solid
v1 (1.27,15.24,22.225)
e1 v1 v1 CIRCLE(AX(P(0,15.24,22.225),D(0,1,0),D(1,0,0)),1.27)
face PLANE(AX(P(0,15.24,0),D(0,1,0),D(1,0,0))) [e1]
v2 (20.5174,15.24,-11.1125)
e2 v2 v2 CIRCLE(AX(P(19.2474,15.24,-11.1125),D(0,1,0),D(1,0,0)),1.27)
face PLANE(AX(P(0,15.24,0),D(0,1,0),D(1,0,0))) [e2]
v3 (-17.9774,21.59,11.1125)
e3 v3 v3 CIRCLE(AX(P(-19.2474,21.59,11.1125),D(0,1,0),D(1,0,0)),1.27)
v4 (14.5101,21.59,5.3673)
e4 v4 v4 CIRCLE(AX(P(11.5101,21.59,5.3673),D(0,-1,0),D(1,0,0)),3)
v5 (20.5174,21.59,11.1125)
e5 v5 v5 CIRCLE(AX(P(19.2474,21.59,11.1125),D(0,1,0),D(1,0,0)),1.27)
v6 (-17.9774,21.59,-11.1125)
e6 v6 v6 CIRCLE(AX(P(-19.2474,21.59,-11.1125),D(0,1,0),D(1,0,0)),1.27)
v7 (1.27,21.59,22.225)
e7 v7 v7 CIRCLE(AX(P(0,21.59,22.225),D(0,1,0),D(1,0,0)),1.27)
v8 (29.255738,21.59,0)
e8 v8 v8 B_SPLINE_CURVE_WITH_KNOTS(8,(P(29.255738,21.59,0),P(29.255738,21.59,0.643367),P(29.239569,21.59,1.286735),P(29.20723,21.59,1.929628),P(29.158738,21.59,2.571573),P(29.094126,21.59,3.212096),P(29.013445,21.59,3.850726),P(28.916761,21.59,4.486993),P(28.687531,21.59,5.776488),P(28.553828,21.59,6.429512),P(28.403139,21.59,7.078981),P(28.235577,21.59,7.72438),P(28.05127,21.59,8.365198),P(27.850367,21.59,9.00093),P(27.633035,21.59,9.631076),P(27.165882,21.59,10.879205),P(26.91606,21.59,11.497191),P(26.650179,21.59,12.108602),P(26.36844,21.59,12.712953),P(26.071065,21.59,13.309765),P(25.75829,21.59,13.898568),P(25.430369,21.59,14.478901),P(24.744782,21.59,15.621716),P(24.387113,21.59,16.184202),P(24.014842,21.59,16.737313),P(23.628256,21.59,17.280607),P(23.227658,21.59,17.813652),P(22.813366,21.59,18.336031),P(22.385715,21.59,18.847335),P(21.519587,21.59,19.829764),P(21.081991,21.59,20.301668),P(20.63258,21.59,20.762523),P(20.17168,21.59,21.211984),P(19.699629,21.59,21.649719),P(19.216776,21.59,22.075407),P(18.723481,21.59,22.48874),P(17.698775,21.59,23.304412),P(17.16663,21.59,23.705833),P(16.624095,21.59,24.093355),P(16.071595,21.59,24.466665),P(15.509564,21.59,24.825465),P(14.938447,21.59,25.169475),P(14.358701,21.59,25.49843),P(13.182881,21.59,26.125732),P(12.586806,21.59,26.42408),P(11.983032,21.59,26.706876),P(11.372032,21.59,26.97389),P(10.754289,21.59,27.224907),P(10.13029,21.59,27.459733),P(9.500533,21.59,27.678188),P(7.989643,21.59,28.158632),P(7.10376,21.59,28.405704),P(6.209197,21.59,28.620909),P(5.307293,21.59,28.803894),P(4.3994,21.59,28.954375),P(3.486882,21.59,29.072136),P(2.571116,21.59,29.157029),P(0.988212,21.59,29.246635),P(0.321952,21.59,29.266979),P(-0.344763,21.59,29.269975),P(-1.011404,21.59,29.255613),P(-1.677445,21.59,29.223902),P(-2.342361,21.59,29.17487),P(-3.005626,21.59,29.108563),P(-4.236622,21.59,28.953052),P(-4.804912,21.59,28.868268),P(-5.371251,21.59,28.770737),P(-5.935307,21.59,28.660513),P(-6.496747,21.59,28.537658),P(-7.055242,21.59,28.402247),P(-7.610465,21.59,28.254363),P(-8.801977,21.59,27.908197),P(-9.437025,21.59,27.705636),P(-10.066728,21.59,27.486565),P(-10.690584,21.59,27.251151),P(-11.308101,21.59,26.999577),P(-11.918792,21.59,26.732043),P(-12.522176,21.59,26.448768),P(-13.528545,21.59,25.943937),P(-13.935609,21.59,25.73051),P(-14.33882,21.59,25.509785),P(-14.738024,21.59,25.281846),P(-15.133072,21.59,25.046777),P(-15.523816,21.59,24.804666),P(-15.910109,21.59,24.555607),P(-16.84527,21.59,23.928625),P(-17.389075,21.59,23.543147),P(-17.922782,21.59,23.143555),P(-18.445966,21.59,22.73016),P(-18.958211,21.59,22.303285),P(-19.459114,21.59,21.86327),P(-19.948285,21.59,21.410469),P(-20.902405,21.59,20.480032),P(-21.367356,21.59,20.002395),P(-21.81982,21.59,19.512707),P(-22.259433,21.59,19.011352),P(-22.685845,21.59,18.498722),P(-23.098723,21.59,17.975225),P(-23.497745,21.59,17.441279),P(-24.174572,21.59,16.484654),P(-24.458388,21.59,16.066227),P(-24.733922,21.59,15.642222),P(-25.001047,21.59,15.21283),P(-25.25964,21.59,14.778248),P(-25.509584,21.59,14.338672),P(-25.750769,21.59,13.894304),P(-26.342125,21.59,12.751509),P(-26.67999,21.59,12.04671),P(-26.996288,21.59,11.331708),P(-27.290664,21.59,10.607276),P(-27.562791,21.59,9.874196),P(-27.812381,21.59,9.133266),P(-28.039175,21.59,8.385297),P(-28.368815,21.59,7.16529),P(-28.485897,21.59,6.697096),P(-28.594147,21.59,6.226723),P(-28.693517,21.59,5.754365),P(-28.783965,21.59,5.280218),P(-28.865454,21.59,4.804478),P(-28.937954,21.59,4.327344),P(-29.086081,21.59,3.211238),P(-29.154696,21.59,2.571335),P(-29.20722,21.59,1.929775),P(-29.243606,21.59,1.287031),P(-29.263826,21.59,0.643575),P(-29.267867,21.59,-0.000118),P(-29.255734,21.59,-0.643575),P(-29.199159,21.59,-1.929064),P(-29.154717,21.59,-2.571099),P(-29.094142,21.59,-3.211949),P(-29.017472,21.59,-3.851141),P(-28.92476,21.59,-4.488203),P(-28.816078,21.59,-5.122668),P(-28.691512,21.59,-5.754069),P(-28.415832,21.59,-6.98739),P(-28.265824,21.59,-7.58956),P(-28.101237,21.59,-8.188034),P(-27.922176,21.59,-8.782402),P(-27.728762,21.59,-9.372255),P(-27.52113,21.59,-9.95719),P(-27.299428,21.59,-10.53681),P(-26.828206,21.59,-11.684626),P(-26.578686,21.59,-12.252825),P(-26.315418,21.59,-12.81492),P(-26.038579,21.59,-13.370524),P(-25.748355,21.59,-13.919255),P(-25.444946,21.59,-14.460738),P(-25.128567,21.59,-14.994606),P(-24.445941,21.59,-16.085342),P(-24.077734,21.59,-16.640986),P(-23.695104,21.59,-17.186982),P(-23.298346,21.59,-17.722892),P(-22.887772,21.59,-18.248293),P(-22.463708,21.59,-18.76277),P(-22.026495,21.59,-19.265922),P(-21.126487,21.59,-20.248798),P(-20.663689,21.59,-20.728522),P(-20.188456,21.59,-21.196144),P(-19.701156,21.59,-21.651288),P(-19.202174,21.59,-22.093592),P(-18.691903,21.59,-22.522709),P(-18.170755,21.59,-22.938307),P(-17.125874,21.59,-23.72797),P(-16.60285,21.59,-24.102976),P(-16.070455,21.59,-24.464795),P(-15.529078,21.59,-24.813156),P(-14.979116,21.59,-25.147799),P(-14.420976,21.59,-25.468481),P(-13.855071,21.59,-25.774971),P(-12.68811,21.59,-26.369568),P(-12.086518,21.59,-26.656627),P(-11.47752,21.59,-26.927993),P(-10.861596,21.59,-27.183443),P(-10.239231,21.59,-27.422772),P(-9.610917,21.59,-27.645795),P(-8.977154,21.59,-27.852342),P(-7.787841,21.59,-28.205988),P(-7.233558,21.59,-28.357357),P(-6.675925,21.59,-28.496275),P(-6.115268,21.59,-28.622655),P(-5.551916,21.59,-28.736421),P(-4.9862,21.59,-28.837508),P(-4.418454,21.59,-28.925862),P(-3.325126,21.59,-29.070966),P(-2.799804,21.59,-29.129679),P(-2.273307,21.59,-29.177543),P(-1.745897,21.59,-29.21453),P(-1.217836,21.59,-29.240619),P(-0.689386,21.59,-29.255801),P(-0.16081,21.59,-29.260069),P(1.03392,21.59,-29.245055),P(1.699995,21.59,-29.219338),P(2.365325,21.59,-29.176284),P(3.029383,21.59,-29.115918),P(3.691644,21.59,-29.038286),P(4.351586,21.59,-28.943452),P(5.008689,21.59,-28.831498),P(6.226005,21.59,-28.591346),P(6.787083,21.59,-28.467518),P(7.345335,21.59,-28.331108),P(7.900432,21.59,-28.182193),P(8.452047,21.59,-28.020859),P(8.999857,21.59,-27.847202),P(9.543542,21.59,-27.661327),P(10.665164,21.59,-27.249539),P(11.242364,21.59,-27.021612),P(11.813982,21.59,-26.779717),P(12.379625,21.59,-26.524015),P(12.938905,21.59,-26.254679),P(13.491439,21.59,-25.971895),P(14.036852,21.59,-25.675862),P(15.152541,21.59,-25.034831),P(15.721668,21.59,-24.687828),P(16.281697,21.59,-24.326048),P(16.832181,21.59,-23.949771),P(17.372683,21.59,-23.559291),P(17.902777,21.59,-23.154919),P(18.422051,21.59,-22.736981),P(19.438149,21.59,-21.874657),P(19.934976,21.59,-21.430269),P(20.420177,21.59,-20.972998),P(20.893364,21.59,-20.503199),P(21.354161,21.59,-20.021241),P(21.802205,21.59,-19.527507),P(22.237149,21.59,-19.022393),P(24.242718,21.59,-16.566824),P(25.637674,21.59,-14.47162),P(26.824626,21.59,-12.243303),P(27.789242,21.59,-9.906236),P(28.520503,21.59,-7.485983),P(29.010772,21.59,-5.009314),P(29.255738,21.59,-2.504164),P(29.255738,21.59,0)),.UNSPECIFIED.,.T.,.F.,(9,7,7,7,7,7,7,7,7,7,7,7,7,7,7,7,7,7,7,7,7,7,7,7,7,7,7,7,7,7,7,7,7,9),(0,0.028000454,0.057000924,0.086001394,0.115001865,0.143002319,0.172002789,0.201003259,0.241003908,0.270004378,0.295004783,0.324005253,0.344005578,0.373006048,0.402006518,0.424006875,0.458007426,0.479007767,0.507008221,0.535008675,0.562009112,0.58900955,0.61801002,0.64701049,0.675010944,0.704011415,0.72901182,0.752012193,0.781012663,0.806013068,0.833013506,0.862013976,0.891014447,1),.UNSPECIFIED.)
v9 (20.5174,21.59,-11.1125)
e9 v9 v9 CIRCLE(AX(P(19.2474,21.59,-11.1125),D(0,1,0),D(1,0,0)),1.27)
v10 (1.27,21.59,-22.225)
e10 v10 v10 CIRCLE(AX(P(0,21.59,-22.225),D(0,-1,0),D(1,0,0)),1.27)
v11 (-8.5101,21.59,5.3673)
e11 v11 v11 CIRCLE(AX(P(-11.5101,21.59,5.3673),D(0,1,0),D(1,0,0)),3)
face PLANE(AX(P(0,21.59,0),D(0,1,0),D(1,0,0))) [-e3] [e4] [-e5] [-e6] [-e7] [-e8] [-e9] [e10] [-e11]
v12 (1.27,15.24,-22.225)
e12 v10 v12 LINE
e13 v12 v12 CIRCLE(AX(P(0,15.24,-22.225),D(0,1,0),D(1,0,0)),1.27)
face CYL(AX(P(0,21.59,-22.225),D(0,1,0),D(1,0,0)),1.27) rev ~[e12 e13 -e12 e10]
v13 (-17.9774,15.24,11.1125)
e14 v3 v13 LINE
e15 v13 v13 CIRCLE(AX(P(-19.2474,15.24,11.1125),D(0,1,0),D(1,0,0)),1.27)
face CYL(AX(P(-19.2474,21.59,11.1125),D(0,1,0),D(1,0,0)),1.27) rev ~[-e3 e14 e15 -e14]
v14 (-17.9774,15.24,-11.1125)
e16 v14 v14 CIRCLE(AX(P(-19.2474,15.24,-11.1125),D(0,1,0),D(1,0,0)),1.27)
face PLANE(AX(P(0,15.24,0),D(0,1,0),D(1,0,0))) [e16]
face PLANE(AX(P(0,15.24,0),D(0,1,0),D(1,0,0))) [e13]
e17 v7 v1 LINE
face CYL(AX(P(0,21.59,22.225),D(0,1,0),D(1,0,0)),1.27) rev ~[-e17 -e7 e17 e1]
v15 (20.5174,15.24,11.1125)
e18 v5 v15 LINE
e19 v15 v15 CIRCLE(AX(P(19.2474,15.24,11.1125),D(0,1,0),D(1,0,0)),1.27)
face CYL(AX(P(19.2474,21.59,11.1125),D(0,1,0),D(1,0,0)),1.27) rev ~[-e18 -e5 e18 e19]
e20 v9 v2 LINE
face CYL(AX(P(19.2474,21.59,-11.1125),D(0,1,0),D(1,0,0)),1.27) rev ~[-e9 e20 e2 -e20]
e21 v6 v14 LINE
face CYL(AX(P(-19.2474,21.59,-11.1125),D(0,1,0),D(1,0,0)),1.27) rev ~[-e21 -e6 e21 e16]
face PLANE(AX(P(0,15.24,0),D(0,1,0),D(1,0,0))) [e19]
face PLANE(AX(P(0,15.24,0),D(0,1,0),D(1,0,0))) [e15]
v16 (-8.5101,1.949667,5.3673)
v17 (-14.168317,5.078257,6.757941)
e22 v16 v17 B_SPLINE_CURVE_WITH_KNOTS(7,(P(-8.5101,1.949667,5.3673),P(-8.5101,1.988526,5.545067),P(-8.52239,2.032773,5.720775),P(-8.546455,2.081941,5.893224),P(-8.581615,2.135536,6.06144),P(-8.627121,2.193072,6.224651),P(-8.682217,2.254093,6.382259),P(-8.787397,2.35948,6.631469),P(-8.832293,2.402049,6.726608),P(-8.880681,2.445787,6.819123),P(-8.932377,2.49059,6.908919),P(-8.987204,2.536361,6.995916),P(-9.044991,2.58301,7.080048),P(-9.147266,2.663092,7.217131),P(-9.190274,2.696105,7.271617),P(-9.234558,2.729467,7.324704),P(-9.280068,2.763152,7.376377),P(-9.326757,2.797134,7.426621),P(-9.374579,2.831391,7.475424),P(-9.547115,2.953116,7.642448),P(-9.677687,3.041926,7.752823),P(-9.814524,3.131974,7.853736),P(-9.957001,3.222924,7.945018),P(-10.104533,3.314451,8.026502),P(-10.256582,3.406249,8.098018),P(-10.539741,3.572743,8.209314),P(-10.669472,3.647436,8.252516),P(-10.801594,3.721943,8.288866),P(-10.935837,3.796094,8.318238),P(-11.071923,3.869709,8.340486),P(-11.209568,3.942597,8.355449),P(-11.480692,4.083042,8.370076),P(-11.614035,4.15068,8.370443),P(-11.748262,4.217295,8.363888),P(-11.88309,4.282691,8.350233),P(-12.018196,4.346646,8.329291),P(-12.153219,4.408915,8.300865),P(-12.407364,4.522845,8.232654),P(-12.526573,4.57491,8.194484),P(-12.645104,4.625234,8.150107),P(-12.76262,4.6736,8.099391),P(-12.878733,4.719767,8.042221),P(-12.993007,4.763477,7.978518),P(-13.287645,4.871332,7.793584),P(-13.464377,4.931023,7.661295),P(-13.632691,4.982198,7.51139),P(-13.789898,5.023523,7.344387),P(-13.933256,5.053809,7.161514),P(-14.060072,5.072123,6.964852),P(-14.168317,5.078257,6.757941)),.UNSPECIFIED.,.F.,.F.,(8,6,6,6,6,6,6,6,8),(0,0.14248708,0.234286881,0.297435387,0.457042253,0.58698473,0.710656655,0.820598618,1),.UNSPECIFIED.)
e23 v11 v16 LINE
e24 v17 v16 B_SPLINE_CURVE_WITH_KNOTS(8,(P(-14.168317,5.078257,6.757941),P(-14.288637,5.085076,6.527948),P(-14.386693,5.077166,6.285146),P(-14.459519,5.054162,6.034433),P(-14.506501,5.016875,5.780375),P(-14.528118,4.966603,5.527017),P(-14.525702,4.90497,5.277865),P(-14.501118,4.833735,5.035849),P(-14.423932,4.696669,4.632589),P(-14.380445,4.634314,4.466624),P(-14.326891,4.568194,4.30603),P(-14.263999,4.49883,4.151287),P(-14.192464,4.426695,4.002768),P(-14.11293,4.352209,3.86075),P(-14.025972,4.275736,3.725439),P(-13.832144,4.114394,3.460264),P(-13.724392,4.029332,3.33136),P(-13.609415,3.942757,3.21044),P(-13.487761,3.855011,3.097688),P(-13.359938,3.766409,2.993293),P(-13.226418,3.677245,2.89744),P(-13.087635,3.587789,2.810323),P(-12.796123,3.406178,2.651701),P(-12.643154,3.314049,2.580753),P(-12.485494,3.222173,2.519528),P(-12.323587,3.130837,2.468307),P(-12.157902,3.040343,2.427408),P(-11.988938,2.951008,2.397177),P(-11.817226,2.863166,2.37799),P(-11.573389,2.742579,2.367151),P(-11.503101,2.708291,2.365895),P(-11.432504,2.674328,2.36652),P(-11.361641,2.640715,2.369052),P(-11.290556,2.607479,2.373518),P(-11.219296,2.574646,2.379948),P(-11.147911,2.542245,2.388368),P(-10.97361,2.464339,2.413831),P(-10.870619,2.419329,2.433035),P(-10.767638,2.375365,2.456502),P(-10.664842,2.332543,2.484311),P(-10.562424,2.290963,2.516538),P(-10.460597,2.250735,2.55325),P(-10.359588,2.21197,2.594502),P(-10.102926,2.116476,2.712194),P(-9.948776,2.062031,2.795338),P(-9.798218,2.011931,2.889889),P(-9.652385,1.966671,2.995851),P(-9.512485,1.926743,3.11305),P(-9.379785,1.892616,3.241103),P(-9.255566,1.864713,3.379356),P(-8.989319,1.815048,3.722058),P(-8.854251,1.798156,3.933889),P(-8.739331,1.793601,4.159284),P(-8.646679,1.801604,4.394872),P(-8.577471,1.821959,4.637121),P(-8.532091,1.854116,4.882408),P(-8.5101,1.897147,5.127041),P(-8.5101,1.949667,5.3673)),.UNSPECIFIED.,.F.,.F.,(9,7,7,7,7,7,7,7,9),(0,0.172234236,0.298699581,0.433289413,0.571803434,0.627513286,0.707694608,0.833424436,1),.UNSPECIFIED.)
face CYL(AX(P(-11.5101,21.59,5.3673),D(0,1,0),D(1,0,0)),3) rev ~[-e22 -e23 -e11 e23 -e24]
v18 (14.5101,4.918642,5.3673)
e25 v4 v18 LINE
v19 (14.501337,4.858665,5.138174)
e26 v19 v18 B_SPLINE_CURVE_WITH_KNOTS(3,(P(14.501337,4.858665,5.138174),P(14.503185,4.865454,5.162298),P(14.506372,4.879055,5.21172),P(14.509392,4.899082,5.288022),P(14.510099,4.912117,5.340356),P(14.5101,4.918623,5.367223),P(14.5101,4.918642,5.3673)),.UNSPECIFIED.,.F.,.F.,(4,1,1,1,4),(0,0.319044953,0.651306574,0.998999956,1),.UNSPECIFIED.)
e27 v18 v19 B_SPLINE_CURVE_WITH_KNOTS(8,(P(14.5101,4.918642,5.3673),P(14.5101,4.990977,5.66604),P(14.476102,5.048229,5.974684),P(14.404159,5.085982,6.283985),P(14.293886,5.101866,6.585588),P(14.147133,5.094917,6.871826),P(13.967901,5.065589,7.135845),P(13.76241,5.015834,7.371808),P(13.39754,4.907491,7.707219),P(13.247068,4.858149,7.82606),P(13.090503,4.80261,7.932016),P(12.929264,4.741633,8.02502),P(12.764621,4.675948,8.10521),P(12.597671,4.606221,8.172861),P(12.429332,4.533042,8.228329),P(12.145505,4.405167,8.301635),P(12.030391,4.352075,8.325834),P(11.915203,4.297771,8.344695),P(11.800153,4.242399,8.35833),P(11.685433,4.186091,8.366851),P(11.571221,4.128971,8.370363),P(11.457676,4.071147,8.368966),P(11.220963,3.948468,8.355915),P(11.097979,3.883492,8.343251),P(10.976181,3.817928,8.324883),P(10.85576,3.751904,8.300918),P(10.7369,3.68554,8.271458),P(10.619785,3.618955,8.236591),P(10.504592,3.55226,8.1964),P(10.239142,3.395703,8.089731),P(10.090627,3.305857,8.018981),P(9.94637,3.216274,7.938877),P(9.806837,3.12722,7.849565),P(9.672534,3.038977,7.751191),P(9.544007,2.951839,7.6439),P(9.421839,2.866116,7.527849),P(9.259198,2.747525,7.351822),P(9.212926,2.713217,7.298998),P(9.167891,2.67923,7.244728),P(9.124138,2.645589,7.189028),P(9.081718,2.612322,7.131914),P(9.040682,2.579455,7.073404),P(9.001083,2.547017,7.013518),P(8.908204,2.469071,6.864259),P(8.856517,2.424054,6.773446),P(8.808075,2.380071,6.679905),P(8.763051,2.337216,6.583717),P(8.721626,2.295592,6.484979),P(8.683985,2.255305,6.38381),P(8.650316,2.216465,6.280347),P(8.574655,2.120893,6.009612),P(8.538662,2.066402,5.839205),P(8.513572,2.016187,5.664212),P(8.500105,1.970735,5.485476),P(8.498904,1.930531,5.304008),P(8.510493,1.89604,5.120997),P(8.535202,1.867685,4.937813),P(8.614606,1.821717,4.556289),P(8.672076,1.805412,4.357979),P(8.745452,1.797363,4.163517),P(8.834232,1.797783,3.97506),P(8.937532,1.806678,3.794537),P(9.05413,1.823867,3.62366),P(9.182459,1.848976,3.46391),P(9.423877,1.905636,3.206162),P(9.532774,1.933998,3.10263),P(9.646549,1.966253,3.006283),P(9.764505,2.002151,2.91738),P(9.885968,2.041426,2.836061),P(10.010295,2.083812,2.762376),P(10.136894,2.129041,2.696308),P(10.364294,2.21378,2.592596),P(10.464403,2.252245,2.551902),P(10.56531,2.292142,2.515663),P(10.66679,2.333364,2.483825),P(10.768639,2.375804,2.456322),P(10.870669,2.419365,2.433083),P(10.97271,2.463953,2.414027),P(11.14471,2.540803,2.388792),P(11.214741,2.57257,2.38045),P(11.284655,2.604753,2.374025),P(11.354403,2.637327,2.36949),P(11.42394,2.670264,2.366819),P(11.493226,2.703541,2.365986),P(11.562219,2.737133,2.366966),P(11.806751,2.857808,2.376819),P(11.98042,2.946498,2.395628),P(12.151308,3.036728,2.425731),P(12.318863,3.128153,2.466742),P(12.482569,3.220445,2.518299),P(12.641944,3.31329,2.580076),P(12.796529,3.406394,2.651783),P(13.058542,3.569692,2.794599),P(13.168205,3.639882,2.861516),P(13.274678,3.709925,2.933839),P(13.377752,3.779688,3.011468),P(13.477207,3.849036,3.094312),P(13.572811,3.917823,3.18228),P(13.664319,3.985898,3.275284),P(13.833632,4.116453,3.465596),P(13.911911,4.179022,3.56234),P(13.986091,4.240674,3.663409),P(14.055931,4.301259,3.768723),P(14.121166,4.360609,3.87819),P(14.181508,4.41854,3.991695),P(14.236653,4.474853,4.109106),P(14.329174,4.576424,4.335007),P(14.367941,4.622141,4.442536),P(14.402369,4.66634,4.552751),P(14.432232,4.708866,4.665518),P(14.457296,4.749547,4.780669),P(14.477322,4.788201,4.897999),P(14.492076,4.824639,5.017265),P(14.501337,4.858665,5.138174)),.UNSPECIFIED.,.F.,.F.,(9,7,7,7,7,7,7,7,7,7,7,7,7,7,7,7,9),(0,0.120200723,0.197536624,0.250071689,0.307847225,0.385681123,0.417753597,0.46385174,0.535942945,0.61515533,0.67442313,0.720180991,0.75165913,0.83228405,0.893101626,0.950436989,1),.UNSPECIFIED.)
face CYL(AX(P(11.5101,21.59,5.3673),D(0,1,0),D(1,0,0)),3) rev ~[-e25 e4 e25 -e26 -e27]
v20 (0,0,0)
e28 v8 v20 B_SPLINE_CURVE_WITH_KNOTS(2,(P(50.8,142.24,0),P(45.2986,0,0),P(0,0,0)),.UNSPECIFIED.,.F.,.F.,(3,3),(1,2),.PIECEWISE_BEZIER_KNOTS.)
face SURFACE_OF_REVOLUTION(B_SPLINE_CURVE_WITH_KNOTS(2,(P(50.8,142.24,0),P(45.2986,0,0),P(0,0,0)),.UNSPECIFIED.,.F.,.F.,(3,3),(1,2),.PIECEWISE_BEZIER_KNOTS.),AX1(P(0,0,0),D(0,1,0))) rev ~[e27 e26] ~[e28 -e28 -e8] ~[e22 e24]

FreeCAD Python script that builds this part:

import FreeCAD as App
import Part
import Sketcher
from FreeCAD import Vector
Q = App.Units.Quantity


def add_polygon(sketch, points):
    """Adds a closed chain of lines whose ends are joined by coincident constraints."""
    first, n = sketch.GeometryCount, len(points)
    for a, b in zip(points, points[1:] + points[:1]):
        sketch.addGeometry(Part.LineSegment(App.Vector(*a, 0), App.Vector(*b, 0)), False)
    for i in range(n):
        sketch.addConstraint(Sketcher.Constraint("Coincident", first + i, 2, first + (i + 1) % n, 1))

doc = App.newDocument("Part")
body = doc.addObject("PartDesign::Body", "Body")

sketch1 = body.newObject("Sketcher::SketchObject", "Sketch")
sketch1.AttachmentSupport = (doc.getObject("XY_Plane"), [""])
sketch1.MapMode = "FlatFace"
sketch1.addGeometry(Part.LineSegment(Vector(0, 142.24, 0), Vector(0, 0, 0)), False)
sketch1.addGeometry(Part.BSplineCurve([Vector(50.8, 142.24, 0), Vector(45.2986, 0, 0), Vector(0, 0, 0)], [3, 3], [1, 2], False, 2, [1, 1, 1], False), False)
sketch1.addGeometry(Part.LineSegment(Vector(50.8, 142.24, 0), Vector(0, 142.24, 0)), False)
sketch1.addConstraint(Sketcher.Constraint("Block", 1))
sketch1.addConstraint(Sketcher.Constraint("Coincident", 0, 2, 1, 2))
sketch1.addConstraint(Sketcher.Constraint("Coincident", 1, 1, 2, 1))
sketch1.addConstraint(Sketcher.Constraint("Coincident", 2, 2, 0, 1))
sketch1.addConstraint(Sketcher.Constraint("Vertical", 0))
sketch1.addConstraint(Sketcher.Constraint("Horizontal", 2))
revolution = body.newObject("PartDesign::Revolution", "Revolution")
revolution.Profile = sketch1
revolution.ReferenceAxis = (sketch1, ["V_Axis"])
revolution.Angle = 360

sketch2 = body.newObject("Sketcher::SketchObject", "Sketch001")
sketch2.AttachmentSupport = (doc.getObject("XZ_Plane"), [""])
sketch2.MapMode = "FlatFace"
sketch2.AttachmentOffset = App.Placement(Vector(0, 0, -0.85 * 25.4), App.Rotation())
add_polygon(sketch2, [(105, -67), (-101, -67), (-101, 71), (105, 71)])
sketch2.addConstraint(Sketcher.Constraint("Horizontal", 0))
sketch2.addConstraint(Sketcher.Constraint("Vertical", 1))
sketch2.addConstraint(Sketcher.Constraint("Horizontal", 2))
sketch2.addConstraint(Sketcher.Constraint("Vertical", 3))
sketch2.addConstraint(Sketcher.Constraint("DistanceX", 0, 2, 0, 1, Q("8.116 in")))
sketch2.addConstraint(Sketcher.Constraint("DistanceY", 1, 1, 1, 2, 137.5974))
sketch2.addConstraint(Sketcher.Constraint("DistanceY", -1, 1, 1, 2, Q("2.7773 in")))
sketch2.addConstraint(Sketcher.Constraint("DistanceX", -1, 1, 2, 2, Q("4.1218 in")))
pocket1 = body.newObject("PartDesign::Pocket", "Pocket")
pocket1.Profile = sketch2
pocket1.Type = "ThroughAll"

sketch3 = body.newObject("Sketcher::SketchObject", "Sketch002")
sketch3.AttachmentSupport = (doc.getObject("XZ_Plane"), [""])
sketch3.MapMode = "FlatFace"
sketch3.AttachmentOffset = App.Placement(Vector(0, 0, -0.85 * 25.4), App.Rotation())
sketch3.addGeometry(Part.Circle(Vector(0, -22.2, 0), Vector(0, 0, 1), 1.3), False)
sketch3.addGeometry(Part.Circle(Vector(-19.2, -11.1, 0), Vector(0, 0, 1), 1.3), False)
sketch3.addGeometry(Part.Circle(Vector(-19.2, 11.1, 0), Vector(0, 0, 1), 1.3), False)
sketch3.addGeometry(Part.Circle(Vector(0, 22.2, 0), Vector(0, 0, 1), 1.3), False)
sketch3.addGeometry(Part.Circle(Vector(19.2, 11.1, 0), Vector(0, 0, 1), 1.3), False)
sketch3.addGeometry(Part.Circle(Vector(19.2, -11.1, 0), Vector(0, 0, 1), 1.3), False)
sketch3.addConstraint(Sketcher.Constraint("Equal", 0, 1))
sketch3.addConstraint(Sketcher.Constraint("Equal", 1, 2))
sketch3.addConstraint(Sketcher.Constraint("Equal", 2, 3))
sketch3.addConstraint(Sketcher.Constraint("Equal", 3, 4))
sketch3.addConstraint(Sketcher.Constraint("Equal", 4, 5))
sketch3.addConstraint(Sketcher.Constraint("Symmetric", 0, 3, 3, 3, -1, 1))
sketch3.addConstraint(Sketcher.Constraint("Symmetric", 1, 3, 4, 3, -1, 1))
sketch3.addConstraint(Sketcher.Constraint("Symmetric", 2, 3, 5, 3, -1, 1))
sketch3.addConstraint(Sketcher.Constraint("Symmetric", 2, 3, 4, 3, -2))
sketch3.addConstraint(Sketcher.Constraint("PointOnObject", 0, 3, -2))
sketch3.addConstraint(Sketcher.Constraint("Diameter", 0, Q("0.1 in")))
sketch3.addConstraint(Sketcher.Constraint("DistanceY", 0, 3, -1, 1, Q("0.875 in")))
sketch3.addConstraint(Sketcher.Constraint("DistanceY", 1, 3, 2, 3, Q("0.875 in")))
sketch3.addConstraint(Sketcher.Constraint("DistanceX", 1, 3, -1, 1, 19.2474))
pocket2 = body.newObject("PartDesign::Pocket", "Pocket001")
pocket2.Profile = sketch3
pocket2.Length = Q("0.25 in")
pocket2.Reversed = True

sketch4 = body.newObject("Sketcher::SketchObject", "Sketch003")
sketch4.AttachmentSupport = (doc.getObject("XZ_Plane"), [""])
sketch4.MapMode = "FlatFace"
sketch4.AttachmentOffset = App.Placement(Vector(0, 0, -0.85 * 25.4), App.Rotation())
sketch4.addGeometry(Part.Circle(Vector(11.5, 5.4, 0), Vector(0, 0, 1), 3), False)
sketch4.addGeometry(Part.Circle(Vector(-11.5, 5.4, 0), Vector(0, 0, 1), 3), False)
sketch4.addConstraint(Sketcher.Constraint("Equal", 0, 1))
sketch4.addConstraint(Sketcher.Constraint("Symmetric", 0, 3, 1, 3, -2))
sketch4.addConstraint(Sketcher.Constraint("Diameter", 0, 6.0))
sketch4.addConstraint(Sketcher.Constraint("DistanceY", -1, 1, 0, 3, Q("0.2113 in")))
sketch4.addConstraint(Sketcher.Constraint("DistanceX", 1, 3, 0, 3, Q("0.9063 in")))
pocket3 = body.newObject("PartDesign::Pocket", "Pocket002")
pocket3.Profile = sketch4
pocket3.Length = Q("1 in")
pocket3.Reversed = True

doc.recompute()
